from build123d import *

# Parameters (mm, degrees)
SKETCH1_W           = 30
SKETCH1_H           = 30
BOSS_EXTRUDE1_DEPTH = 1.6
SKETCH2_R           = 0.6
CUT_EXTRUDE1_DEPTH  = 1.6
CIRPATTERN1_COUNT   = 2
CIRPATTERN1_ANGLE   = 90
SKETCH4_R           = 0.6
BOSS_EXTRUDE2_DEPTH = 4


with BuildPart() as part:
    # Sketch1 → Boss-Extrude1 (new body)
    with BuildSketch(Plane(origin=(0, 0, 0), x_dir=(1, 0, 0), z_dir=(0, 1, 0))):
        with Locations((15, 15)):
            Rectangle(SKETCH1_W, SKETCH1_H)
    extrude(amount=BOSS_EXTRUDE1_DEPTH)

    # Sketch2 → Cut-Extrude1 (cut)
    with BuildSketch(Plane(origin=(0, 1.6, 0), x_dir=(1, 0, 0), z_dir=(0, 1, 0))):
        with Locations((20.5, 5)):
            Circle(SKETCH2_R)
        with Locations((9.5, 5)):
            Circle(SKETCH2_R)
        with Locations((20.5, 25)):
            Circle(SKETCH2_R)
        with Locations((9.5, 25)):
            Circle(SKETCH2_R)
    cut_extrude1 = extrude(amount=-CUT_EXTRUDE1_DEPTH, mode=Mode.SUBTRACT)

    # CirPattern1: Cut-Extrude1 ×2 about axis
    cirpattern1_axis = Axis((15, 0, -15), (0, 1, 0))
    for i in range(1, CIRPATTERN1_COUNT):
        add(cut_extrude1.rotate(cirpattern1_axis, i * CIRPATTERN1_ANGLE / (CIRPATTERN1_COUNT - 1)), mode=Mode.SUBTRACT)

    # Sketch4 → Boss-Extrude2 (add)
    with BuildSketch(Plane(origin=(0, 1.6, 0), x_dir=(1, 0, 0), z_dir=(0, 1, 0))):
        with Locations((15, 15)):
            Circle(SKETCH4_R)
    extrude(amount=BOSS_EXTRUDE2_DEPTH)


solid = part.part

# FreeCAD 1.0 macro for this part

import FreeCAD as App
import Part
import Sketcher
Q = App.Units.Quantity


def add_polygon(sketch, points):
    """Adds a closed chain of lines whose ends are joined by coincident constraints."""
    first, n = sketch.GeometryCount, len(points)
    for a, b in zip(points, points[1:] + points[:1]):
        sketch.addGeometry(Part.LineSegment(App.Vector(*a, 0), App.Vector(*b, 0)), False)
    for i in range(n):
        sketch.addConstraint(Sketcher.Constraint("Coincident", first + i, 2, first + (i + 1) % n, 1))

doc = App.newDocument("Part")
params = doc.addObject("Spreadsheet::Sheet", "Params")
for row, (alias, value) in enumerate([
    ("sketch1_width", "30 mm"),
    ("pad1_length", "1.6 mm"),
    ("sketch2_diameter", "1.2 mm"),
    ("pocket1_length", "1.6 mm"),
    ("sketch3_diameter", "1.2 mm"),
    ("pad2_length", "4 mm"),
], start=1):
    params.set(f"A{row}", alias)
    params.set(f"B{row}", "=" + value)
    params.setAlias(f"B{row}", alias)

body = doc.addObject("PartDesign::Body", "Body")

sketch1 = body.newObject("Sketcher::SketchObject", "Sketch")
sketch1.AttachmentSupport = (doc.getObject("XZ_Plane"), [""])
sketch1.MapMode = "FlatFace"
add_polygon(sketch1, [(0, -30), (0, 0), (30, 0), (30, -30)])
sketch1.addConstraint([
    Sketcher.Constraint("Vertical", 0),
    Sketcher.Constraint("Horizontal", 1),
    Sketcher.Constraint("Vertical", 2),
    Sketcher.Constraint("Horizontal", 3),
    Sketcher.Constraint("Coincident", 0, 2, -1, 1),
    Sketcher.Constraint("Equal", 3, 0),
    Sketcher.Constraint("DistanceX", 1, 1, 1, 2, Q("30 mm")),
])
sketch1.setExpression("Constraints[10]", "Params.sketch1_width")
pad1 = body.newObject("PartDesign::Pad", "Pad")
pad1.Profile = sketch1
pad1.setExpression("Length", "Params.pad1_length")
pad1.Reversed = True

sketch2 = body.newObject("Sketcher::SketchObject", "Sketch001")
sketch2.AttachmentSupport = (doc.getObject("XZ_Plane"), [""])
sketch2.MapMode = "FlatFace"
sketch2.AttachmentOffset = App.Placement(App.Vector(0, 0, -1.6), App.Rotation())
sketch2.addGeometry([
    Part.Circle(App.Vector(20.5, -5, 0), App.Vector(0, 0, 1), 0.6),
    Part.Circle(App.Vector(9.5, -5, 0), App.Vector(0, 0, 1), 0.6),
    Part.Circle(App.Vector(20.5, -25, 0), App.Vector(0, 0, 1), 0.6),
    Part.Circle(App.Vector(9.5, -25, 0), App.Vector(0, 0, 1), 0.6),
], False)
sketch2.addConstraint([
    Sketcher.Constraint("Equal", 0, 1),
    Sketcher.Constraint("Equal", 1, 2),
    Sketcher.Constraint("Equal", 2, 3),
    Sketcher.Constraint("Horizontal", 0, 3, 1, 3),
    Sketcher.Constraint("Horizontal", 2, 3, 3, 3),
    Sketcher.Constraint("Vertical", 0, 3, 2, 3),
    Sketcher.Constraint("Vertical", 1, 3, 3, 3),
    Sketcher.Constraint("Diameter", 0, Q("1.2 mm")),
    Sketcher.Constraint("DistanceY", 0, 3, -1, 1, Q("5 mm")),
    Sketcher.Constraint("DistanceY", 2, 3, -1, 1, Q("25 mm")),
    Sketcher.Constraint("DistanceX", 1, 3, 0, 3, Q("11 mm")),
    Sketcher.Constraint("DistanceX", -1, 1, 0, 3, Q("20.5 mm")),
])
sketch2.setExpression("Constraints[7]", "Params.sketch2_diameter")
pocket1 = body.newObject("PartDesign::Pocket", "Pocket")
pocket1.Profile = sketch2
pocket1.setExpression("Length", "Params.pocket1_length")
pocket1.Reversed = True
doc.recompute()

datumline = body.newObject("PartDesign::Line", "DatumLine")
datumline.Placement = App.Placement(App.Vector(15, 0, -15), App.Rotation(App.Vector(0, 0, 1), App.Vector(0, 1, 0)))
polarpattern = body.newObject("PartDesign::PolarPattern", "PolarPattern")
polarpattern.Originals = [pocket1]
polarpattern.Axis = (datumline, [""])
polarpattern.Angle = 90
polarpattern.Occurrences = 2
body.Tip = polarpattern

sketch3 = body.newObject("Sketcher::SketchObject", "Sketch002")
sketch3.AttachmentSupport = (doc.getObject("XZ_Plane"), [""])
sketch3.MapMode = "FlatFace"
sketch3.AttachmentOffset = App.Placement(App.Vector(0, 0, -1.6), App.Rotation())
sketch3.addGeometry(Part.Circle(App.Vector(15, -15, 0), App.Vector(0, 0, 1), 0.6), False)
sketch3.addConstraint([
    Sketcher.Constraint("Diameter", 0, Q("1.2 mm")),
    Sketcher.Constraint("DistanceX", -1, 1, 0, 3, Q("15 mm")),
    Sketcher.Constraint("DistanceY", 0, 3, -1, 1, Q("15 mm")),
])
sketch3.setExpression("Constraints[0]", "Params.sketch3_diameter")
pad2 = body.newObject("PartDesign::Pad", "Pad001")
pad2.Profile = sketch3
pad2.setExpression("Length", "Params.pad2_length")
pad2.Reversed = True

doc.recompute()
